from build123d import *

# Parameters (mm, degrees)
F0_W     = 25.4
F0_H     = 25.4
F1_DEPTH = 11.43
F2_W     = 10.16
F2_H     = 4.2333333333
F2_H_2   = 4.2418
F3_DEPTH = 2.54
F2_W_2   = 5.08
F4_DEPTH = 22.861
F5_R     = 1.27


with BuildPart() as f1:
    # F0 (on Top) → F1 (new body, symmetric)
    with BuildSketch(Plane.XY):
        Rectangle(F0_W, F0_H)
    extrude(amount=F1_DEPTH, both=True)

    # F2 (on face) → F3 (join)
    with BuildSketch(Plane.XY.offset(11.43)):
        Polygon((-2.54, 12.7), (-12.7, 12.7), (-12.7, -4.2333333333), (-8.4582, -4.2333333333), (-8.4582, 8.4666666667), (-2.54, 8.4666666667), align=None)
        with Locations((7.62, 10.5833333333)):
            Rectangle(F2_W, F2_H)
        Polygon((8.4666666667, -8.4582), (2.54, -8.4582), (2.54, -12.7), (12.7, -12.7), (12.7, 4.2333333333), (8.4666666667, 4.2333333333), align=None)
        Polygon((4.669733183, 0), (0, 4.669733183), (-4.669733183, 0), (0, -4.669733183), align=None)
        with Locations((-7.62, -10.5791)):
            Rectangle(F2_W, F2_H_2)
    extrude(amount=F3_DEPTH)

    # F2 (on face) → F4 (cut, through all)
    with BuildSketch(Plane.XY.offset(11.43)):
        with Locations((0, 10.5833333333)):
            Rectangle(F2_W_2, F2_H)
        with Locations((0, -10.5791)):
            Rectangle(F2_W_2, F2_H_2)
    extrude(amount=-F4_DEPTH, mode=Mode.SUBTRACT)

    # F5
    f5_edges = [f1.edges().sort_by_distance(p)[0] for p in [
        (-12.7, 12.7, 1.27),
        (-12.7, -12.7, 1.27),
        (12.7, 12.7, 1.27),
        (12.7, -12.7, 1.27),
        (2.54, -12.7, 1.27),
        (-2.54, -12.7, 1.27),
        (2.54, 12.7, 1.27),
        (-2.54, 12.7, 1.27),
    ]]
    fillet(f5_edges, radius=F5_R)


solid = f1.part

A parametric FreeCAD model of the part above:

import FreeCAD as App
import Part
import Sketcher

V = App.Vector
Q = App.Units.Quantity


def edges_at(feature, points):
    """Names of the edges that pass closest to the given points."""
    edges = feature.Shape.Edges
    near = lambda p: min(range(len(edges)), key=lambda i: edges[i].distToShape(Part.Vertex(*p))[0])
    return sorted({f"Edge{near(p) + 1}" for p in points})


def add_polygon(sketch, points):
    """Adds a closed chain of lines whose ends are joined by coincident constraints."""
    first, n = sketch.GeometryCount, len(points)
    for a, b in zip(points, points[1:] + points[:1]):
        sketch.addGeometry(Part.LineSegment(App.Vector(*a, 0), App.Vector(*b, 0)), False)
    for i in range(n):
        sketch.addConstraint(Sketcher.Constraint("Coincident", first + i, 2, first + (i + 1) % n, 1))

doc = App.newDocument("Part")
params = doc.addObject("Spreadsheet::Sheet", "Params")
for row, (alias, value) in enumerate([
    ("sketch1_width", "1 in"),
    ("pad1_length", "0.9 in"),
    ("sketch2_width", "0.4 in"),
    ("sketch2_height", "0.5 in"),
    ("sketch2_length", "0.26 in"),
    ("sketch2_width2", "0.167 in"),
    ("pad2_length", "0.1 in"),
    ("sketch3_width", "0.2 in"),
    ("sketch3_height", "0.167 in"),
    ("fillet_radius", "0.05 in"),
], start=1):
    params.set(f"A{row}", alias)
    params.set(f"B{row}", "=" + value)
    params.setAlias(f"B{row}", alias)

body = doc.addObject("PartDesign::Body", "Body")

# Sketch on XY plane
sketch1 = doc.addObject("Sketcher::SketchObject", "Sketch")
body.addObject(sketch1)
sketch1.AttachmentSupport = (doc.XY_Plane, [""])
sketch1.MapMode = "FlatFace"
add_polygon(sketch1, [(-13, 13), (-13, -13), (13, -13), (13, 13)])  # lines 0-3
sketch1.addConstraint(Sketcher.Constraint("Vertical", 0))
sketch1.addConstraint(Sketcher.Constraint("Horizontal", 1))
sketch1.addConstraint(Sketcher.Constraint("Vertical", 2))
sketch1.addConstraint(Sketcher.Constraint("Horizontal", 3))
sketch1.addConstraint(Sketcher.Constraint("Symmetric", 0, 2, 2, 2, -1, 1))
sketch1.addConstraint(Sketcher.Constraint("Equal", 3, 0))
sketch1.addConstraint(Sketcher.Constraint("DistanceX", 1, 1, 1, 2, Q("1 in")))
sketch1.setExpression("Constraints[10]", "Params.sketch1_width")
pad1 = doc.addObject("PartDesign::Pad", "Pad")
body.addObject(pad1)
pad1.Profile = sketch1
pad1.setExpression("Length", "Params.pad1_length")
pad1.Midplane = True

# Sketch on XY plane
sketch2 = doc.addObject("Sketcher::SketchObject", "Sketch001")
body.addObject(sketch2)
sketch2.AttachmentSupport = (doc.XY_Plane, [""])
sketch2.MapMode = "FlatFace"
sketch2.AttachmentOffset = App.Placement(V(0, 0, 0.45 * 25.4), App.Rotation())
add_polygon(sketch2, [(-2.5, 12.7), (-12.7, 12.7), (-12.7, -4.2), (-8.5, -4.2), (-8.5, 8.5), (-2.5, 8.5)])  # lines 0-5
add_polygon(sketch2, [(2.5, 12.7), (2.5, 8.5), (12.7, 8.5), (12.7, 12.7)])  # lines 6-9
add_polygon(sketch2, [(8.5, -8.5), (2.5, -8.5), (2.5, -12.7), (12.7, -12.7), (12.7, 4.2), (8.5, 4.2)])  # lines 10-15
add_polygon(sketch2, [(4.7, 0), (0, 4.7), (-4.7, 0), (0, -4.7)])  # lines 16-19
add_polygon(sketch2, [(-12.7, -8.5), (-12.7, -12.7), (-2.5, -12.7), (-2.5, -8.5)])  # lines 20-23
sketch2.addConstraint(Sketcher.Constraint("Horizontal", 0))
sketch2.addConstraint(Sketcher.Constraint("Vertical", 1))
sketch2.addConstraint(Sketcher.Constraint("Horizontal", 2))
sketch2.addConstraint(Sketcher.Constraint("Vertical", 3))
sketch2.addConstraint(Sketcher.Constraint("Horizontal", 4))
sketch2.addConstraint(Sketcher.Constraint("Vertical", 5))
sketch2.addConstraint(Sketcher.Constraint("Vertical", 6))
sketch2.addConstraint(Sketcher.Constraint("Horizontal", 7))
sketch2.addConstraint(Sketcher.Constraint("Vertical", 8))
sketch2.addConstraint(Sketcher.Constraint("Horizontal", 9))
sketch2.addConstraint(Sketcher.Constraint("Horizontal", 10))
sketch2.addConstraint(Sketcher.Constraint("Vertical", 11))
sketch2.addConstraint(Sketcher.Constraint("Horizontal", 12))
sketch2.addConstraint(Sketcher.Constraint("Vertical", 13))
sketch2.addConstraint(Sketcher.Constraint("Horizontal", 14))
sketch2.addConstraint(Sketcher.Constraint("Vertical", 15))
sketch2.addConstraint(Sketcher.Constraint("Vertical", 20))
sketch2.addConstraint(Sketcher.Constraint("Horizontal", 21))
sketch2.addConstraint(Sketcher.Constraint("Vertical", 22))
sketch2.addConstraint(Sketcher.Constraint("Horizontal", 23))
sketch2.addConstraint(Sketcher.Constraint("Symmetric", 5, 2, 11, 2, -1, 1))
sketch2.addConstraint(Sketcher.Constraint("Symmetric", 1, 2, 13, 2, -1, 1))
sketch2.addConstraint(Sketcher.Constraint("Symmetric", 16, 2, 18, 2, -1, 1))
sketch2.addConstraint(Sketcher.Constraint("Symmetric", 17, 2, 19, 2, -1, 1))
sketch2.addConstraint(Sketcher.Constraint("Symmetric", 8, 2, 20, 2, -1, 1))
sketch2.addConstraint(Sketcher.Constraint("Symmetric", 4, 2, 6, 2, -2))
sketch2.addConstraint(Sketcher.Constraint("Symmetric", 0, 2, 8, 2, -2))
sketch2.addConstraint(Sketcher.Constraint("Symmetric", 10, 2, 22, 2, -2))
sketch2.addConstraint(Sketcher.Constraint("PointOnObject", 16, 2, -2))
sketch2.addConstraint(Sketcher.Constraint("PointOnObject", 17, 2, -1))
sketch2.addConstraint(Sketcher.Constraint("Perpendicular", 16, 17))
sketch2.addConstraint(Sketcher.Constraint("Equal", 14, 5))
sketch2.addConstraint(Sketcher.Constraint("Equal", 2, 11))
sketch2.addConstraint(Sketcher.Constraint("DistanceX", 0, 2, 0, 1, Q("0.4 in")))
sketch2.addConstraint(Sketcher.Constraint("DistanceY", 3, 1, 3, 2, Q("0.5 in")))
sketch2.addConstraint(Sketcher.Constraint("DistanceX", 0, 2, -1, 1, Q("0.5 in")))
sketch2.addConstraint(Sketcher.Constraint("DistanceY", -1, 1, 0, 2, Q("0.5 in")))
sketch2.addConstraint(Sketcher.Constraint("Distance", 16, Q("0.26 in")))
sketch2.addConstraint(Sketcher.Constraint("DistanceX", 2, 1, 2, 2, Q("0.167 in")))
sketch2.addConstraint(Sketcher.Constraint("DistanceY", 14, 2, 16, 2, 0.4364))
sketch2.setExpression("Constraints[57]", "Params.sketch2_width")
sketch2.setExpression("Constraints[58]", "Params.sketch2_height")
sketch2.setExpression("Constraints[61]", "Params.sketch2_length")
sketch2.setExpression("Constraints[62]", "Params.sketch2_width2")
pad2 = doc.addObject("PartDesign::Pad", "Pad001")
body.addObject(pad2)
pad2.Profile = sketch2
pad2.setExpression("Length", "Params.pad2_length")

# Sketch on XY plane
sketch3 = doc.addObject("Sketcher::SketchObject", "Sketch002")
body.addObject(sketch3)
sketch3.AttachmentSupport = (doc.XY_Plane, [""])
sketch3.MapMode = "FlatFace"
sketch3.AttachmentOffset = App.Placement(V(0, 0, 0.45 * 25.4), App.Rotation())
add_polygon(sketch3, [(-2.5, 12.7), (-2.5, 8.5), (2.5, 8.5), (2.5, 12.7)])  # lines 0-3
add_polygon(sketch3, [(-2.5, -8.5), (-2.5, -12.7), (2.5, -12.7), (2.5, -8.5)])  # lines 4-7
sketch3.addConstraint(Sketcher.Constraint("Vertical", 0))
sketch3.addConstraint(Sketcher.Constraint("Horizontal", 1))
sketch3.addConstraint(Sketcher.Constraint("Vertical", 2))
sketch3.addConstraint(Sketcher.Constraint("Horizontal", 3))
sketch3.addConstraint(Sketcher.Constraint("Vertical", 4))
sketch3.addConstraint(Sketcher.Constraint("Horizontal", 5))
sketch3.addConstraint(Sketcher.Constraint("Vertical", 6))
sketch3.addConstraint(Sketcher.Constraint("Horizontal", 7))
sketch3.addConstraint(Sketcher.Constraint("Symmetric", 2, 2, 4, 2, -1, 1))
sketch3.addConstraint(Sketcher.Constraint("Vertical", 3, 2, 4, 2))
sketch3.addConstraint(Sketcher.Constraint("Vertical", 2, 2, 5, 2))
sketch3.addConstraint(Sketcher.Constraint("DistanceX", 1, 1, 1, 2, Q("0.2 in")))
sketch3.addConstraint(Sketcher.Constraint("DistanceY", 4, 2, 3, 2, Q("1 in")))
sketch3.addConstraint(Sketcher.Constraint("DistanceY", 4, 2, 4, 1, Q("0.167 in")))
sketch3.addConstraint(Sketcher.Constraint("DistanceY", 0, 2, 0, 1, 4.233333))
sketch3.setExpression("Constraints[19]", "Params.sketch3_width")
sketch3.setExpression("Constraints[21]", "Params.sketch3_height")
pocket1 = doc.addObject("PartDesign::Pocket", "Pocket")
body.addObject(pocket1)
pocket1.Profile = sketch3
pocket1.Type = "ThroughAll"
doc.recompute()

fillet = doc.addObject("PartDesign::Fillet", "Fillet")
body.addObject(fillet)
fillet.Base = (pocket1, edges_at(pocket1, [
    (-12.7, 12.7, 1.27),
    (-12.7, -12.7, 1.27),
    (12.7, 12.7, 0),
    (12.7, -12.7, 1.27),
    (2.54, -12.7, 1.27),
    (-2.54, -12.7, 1.27),
    (2.54, 12.7, 1.27),
    (-2.54, 12.7, 0),
]))
fillet.setExpression("Radius", "Params.fillet_radius")

doc.recompute()
